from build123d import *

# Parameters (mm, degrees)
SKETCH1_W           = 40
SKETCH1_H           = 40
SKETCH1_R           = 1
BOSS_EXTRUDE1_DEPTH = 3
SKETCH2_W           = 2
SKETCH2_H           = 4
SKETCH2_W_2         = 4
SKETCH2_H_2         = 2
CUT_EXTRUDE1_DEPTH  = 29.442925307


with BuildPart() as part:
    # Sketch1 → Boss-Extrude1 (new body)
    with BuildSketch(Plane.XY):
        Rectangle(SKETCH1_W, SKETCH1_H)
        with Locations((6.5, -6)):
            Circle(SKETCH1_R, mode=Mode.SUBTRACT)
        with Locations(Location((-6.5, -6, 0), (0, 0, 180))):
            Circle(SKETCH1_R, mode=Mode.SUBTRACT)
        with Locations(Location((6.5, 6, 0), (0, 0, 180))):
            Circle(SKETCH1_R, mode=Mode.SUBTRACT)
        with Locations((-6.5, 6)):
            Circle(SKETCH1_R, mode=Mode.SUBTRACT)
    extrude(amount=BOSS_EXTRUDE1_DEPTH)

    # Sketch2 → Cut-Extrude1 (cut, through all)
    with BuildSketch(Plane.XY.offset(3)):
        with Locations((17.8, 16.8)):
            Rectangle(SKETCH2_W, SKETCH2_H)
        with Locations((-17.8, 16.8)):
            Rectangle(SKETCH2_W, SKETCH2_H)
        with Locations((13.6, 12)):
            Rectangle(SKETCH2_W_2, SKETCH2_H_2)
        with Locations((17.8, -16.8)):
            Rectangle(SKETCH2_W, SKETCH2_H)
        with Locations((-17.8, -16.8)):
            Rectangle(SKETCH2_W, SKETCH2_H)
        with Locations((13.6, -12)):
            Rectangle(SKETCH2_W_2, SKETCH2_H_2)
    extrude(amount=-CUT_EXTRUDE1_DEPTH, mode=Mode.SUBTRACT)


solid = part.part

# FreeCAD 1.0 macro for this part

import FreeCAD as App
import Part
import Sketcher
from FreeCAD import Vector

doc = App.newDocument("Part")
body = doc.addObject("PartDesign::Body", "Body")

# Sketch on XY plane
sketch1 = body.newObject("Sketcher::SketchObject", "Sketch")
sketch1.AttachmentSupport = (doc.getObject("XY_Plane"), [""])
sketch1.MapMode = "FlatFace"
sketch1.addGeometry(Part.LineSegment(Vector(-20, 20, 0), Vector(-20, -20, 0)), False)
sketch1.addGeometry(Part.LineSegment(Vector(-20, -20, 0), Vector(20, -20, 0)), False)
sketch1.addGeometry(Part.LineSegment(Vector(20, -20, 0), Vector(20, 20, 0)), False)
sketch1.addGeometry(Part.LineSegment(Vector(20, 20, 0), Vector(-20, 20, 0)), False)
sketch1.addGeometry(Part.Circle(Vector(-6.5, -6, 0), Vector(0, 0, 1), 1), False)
sketch1.addGeometry(Part.Circle(Vector(6.5, -6, 0), Vector(0, 0, 1), 1), False)
sketch1.addGeometry(Part.Circle(Vector(-6.5, 6, 0), Vector(0, 0, 1), 1), False)
sketch1.addGeometry(Part.Circle(Vector(6.5, 6, 0), Vector(0, 0, 1), 1), False)
sketch1.addConstraint(Sketcher.Constraint("Coincident", 0, 2, 1, 1))
sketch1.addConstraint(Sketcher.Constraint("Coincident", 1, 2, 2, 1))
sketch1.addConstraint(Sketcher.Constraint("Coincident", 2, 2, 3, 1))
sketch1.addConstraint(Sketcher.Constraint("Coincident", 3, 2, 0, 1))
sketch1.addConstraint(Sketcher.Constraint("Vertical", 0))
sketch1.addConstraint(Sketcher.Constraint("Horizontal", 1))
sketch1.addConstraint(Sketcher.Constraint("Vertical", 2))
sketch1.addConstraint(Sketcher.Constraint("Horizontal", 3))
sketch1.addConstraint(Sketcher.Constraint("Equal", 4, 5))
sketch1.addConstraint(Sketcher.Constraint("Equal", 5, 6))
sketch1.addConstraint(Sketcher.Constraint("Equal", 6, 7))
sketch1.addConstraint(Sketcher.Constraint("Symmetric", 5, 3, 6, 3, -1, 1))
sketch1.addConstraint(Sketcher.Constraint("Symmetric", 4, 3, 7, 3, -1, 1))
sketch1.addConstraint(Sketcher.Constraint("Symmetric", 0, 2, 2, 2, -1, 1))
sketch1.addConstraint(Sketcher.Constraint("Symmetric", 4, 3, 5, 3, -2))
sketch1.addConstraint(Sketcher.Constraint("Equal", 3, 0))
sketch1.addConstraint(Sketcher.Constraint("Diameter", 4, 2.0))
sketch1.addConstraint(Sketcher.Constraint("DistanceX", 1, 1, 1, 2, 40.0))
sketch1.addConstraint(Sketcher.Constraint("DistanceY", 4, 3, -1, 1, 6.0))
sketch1.addConstraint(Sketcher.Constraint("DistanceX", 4, 3, 5, 3, 13.0))
pad1 = body.newObject("PartDesign::Pad", "Pad")
pad1.Profile = sketch1
pad1.Length = 3

# Sketch on XY plane
sketch2 = body.newObject("Sketcher::SketchObject", "Sketch001")
sketch2.AttachmentSupport = (doc.getObject("XY_Plane"), [""])
sketch2.MapMode = "FlatFace"
sketch2.AttachmentOffset = App.Placement(Vector(0, 0, 3), App.Rotation())
sketch2.addGeometry(Part.LineSegment(Vector(16.8, 18.8, 0), Vector(16.8, 14.8, 0)), False)
sketch2.addGeometry(Part.LineSegment(Vector(16.8, 14.8, 0), Vector(18.8, 14.8, 0)), False)
sketch2.addGeometry(Part.LineSegment(Vector(18.8, 14.8, 0), Vector(18.8, 18.8, 0)), False)
sketch2.addGeometry(Part.LineSegment(Vector(18.8, 18.8, 0), Vector(16.8, 18.8, 0)), False)
sketch2.addGeometry(Part.LineSegment(Vector(-18.8, 18.8, 0), Vector(-18.8, 14.8, 0)), False)
sketch2.addGeometry(Part.LineSegment(Vector(-18.8, 14.8, 0), Vector(-16.8, 14.8, 0)), False)
sketch2.addGeometry(Part.LineSegment(Vector(-16.8, 14.8, 0), Vector(-16.8, 18.8, 0)), False)
sketch2.addGeometry(Part.LineSegment(Vector(-16.8, 18.8, 0), Vector(-18.8, 18.8, 0)), False)
sketch2.addGeometry(Part.LineSegment(Vector(11.6, 13, 0), Vector(11.6, 11, 0)), False)
sketch2.addGeometry(Part.LineSegment(Vector(11.6, 11, 0), Vector(15.6, 11, 0)), False)
sketch2.addGeometry(Part.LineSegment(Vector(15.6, 11, 0), Vector(15.6, 13, 0)), False)
sketch2.addGeometry(Part.LineSegment(Vector(15.6, 13, 0), Vector(11.6, 13, 0)), False)
sketch2.addGeometry(Part.LineSegment(Vector(16.8, -14.8, 0), Vector(16.8, -18.8, 0)), False)
sketch2.addGeometry(Part.LineSegment(Vector(16.8, -18.8, 0), Vector(18.8, -18.8, 0)), False)
sketch2.addGeometry(Part.LineSegment(Vector(18.8, -18.8, 0), Vector(18.8, -14.8, 0)), False)
sketch2.addGeometry(Part.LineSegment(Vector(18.8, -14.8, 0), Vector(16.8, -14.8, 0)), False)
sketch2.addGeometry(Part.LineSegment(Vector(-18.8, -14.8, 0), Vector(-18.8, -18.8, 0)), False)
sketch2.addGeometry(Part.LineSegment(Vector(-18.8, -18.8, 0), Vector(-16.8, -18.8, 0)), False)
sketch2.addGeometry(Part.LineSegment(Vector(-16.8, -18.8, 0), Vector(-16.8, -14.8, 0)), False)
sketch2.addGeometry(Part.LineSegment(Vector(-16.8, -14.8, 0), Vector(-18.8, -14.8, 0)), False)
sketch2.addGeometry(Part.LineSegment(Vector(11.6, -11, 0), Vector(11.6, -13, 0)), False)
sketch2.addGeometry(Part.LineSegment(Vector(11.6, -13, 0), Vector(15.6, -13, 0)), False)
sketch2.addGeometry(Part.LineSegment(Vector(15.6, -13, 0), Vector(15.6, -11, 0)), False)
sketch2.addGeometry(Part.LineSegment(Vector(15.6, -11, 0), Vector(11.6, -11, 0)), False)
sketch2.addConstraint(Sketcher.Constraint("Coincident", 0, 2, 1, 1))
sketch2.addConstraint(Sketcher.Constraint("Coincident", 1, 2, 2, 1))
sketch2.addConstraint(Sketcher.Constraint("Coincident", 2, 2, 3, 1))
sketch2.addConstraint(Sketcher.Constraint("Coincident", 3, 2, 0, 1))
sketch2.addConstraint(Sketcher.Constraint("Coincident", 4, 2, 5, 1))
sketch2.addConstraint(Sketcher.Constraint("Coincident", 5, 2, 6, 1))
sketch2.addConstraint(Sketcher.Constraint("Coincident", 6, 2, 7, 1))
sketch2.addConstraint(Sketcher.Constraint("Coincident", 7, 2, 4, 1))
sketch2.addConstraint(Sketcher.Constraint("Coincident", 8, 2, 9, 1))
sketch2.addConstraint(Sketcher.Constraint("Coincident", 9, 2, 10, 1))
sketch2.addConstraint(Sketcher.Constraint("Coincident", 10, 2, 11, 1))
sketch2.addConstraint(Sketcher.Constraint("Coincident", 11, 2, 8, 1))
sketch2.addConstraint(Sketcher.Constraint("Coincident", 12, 2, 13, 1))
sketch2.addConstraint(Sketcher.Constraint("Coincident", 13, 2, 14, 1))
sketch2.addConstraint(Sketcher.Constraint("Coincident", 14, 2, 15, 1))
sketch2.addConstraint(Sketcher.Constraint("Coincident", 15, 2, 12, 1))
sketch2.addConstraint(Sketcher.Constraint("Coincident", 16, 2, 17, 1))
sketch2.addConstraint(Sketcher.Constraint("Coincident", 17, 2, 18, 1))
sketch2.addConstraint(Sketcher.Constraint("Coincident", 18, 2, 19, 1))
sketch2.addConstraint(Sketcher.Constraint("Coincident", 19, 2, 16, 1))
sketch2.addConstraint(Sketcher.Constraint("Coincident", 20, 2, 21, 1))
sketch2.addConstraint(Sketcher.Constraint("Coincident", 21, 2, 22, 1))
sketch2.addConstraint(Sketcher.Constraint("Coincident", 22, 2, 23, 1))
sketch2.addConstraint(Sketcher.Constraint("Coincident", 23, 2, 20, 1))
sketch2.addConstraint(Sketcher.Constraint("Vertical", 0))
sketch2.addConstraint(Sketcher.Constraint("Horizontal", 1))
sketch2.addConstraint(Sketcher.Constraint("Vertical", 2))
sketch2.addConstraint(Sketcher.Constraint("Horizontal", 3))
sketch2.addConstraint(Sketcher.Constraint("Vertical", 4))
sketch2.addConstraint(Sketcher.Constraint("Horizontal", 5))
sketch2.addConstraint(Sketcher.Constraint("Vertical", 6))
sketch2.addConstraint(Sketcher.Constraint("Horizontal", 7))
sketch2.addConstraint(Sketcher.Constraint("Vertical", 8))
sketch2.addConstraint(Sketcher.Constraint("Horizontal", 9))
sketch2.addConstraint(Sketcher.Constraint("Vertical", 10))
sketch2.addConstraint(Sketcher.Constraint("Horizontal", 11))
sketch2.addConstraint(Sketcher.Constraint("Vertical", 12))
sketch2.addConstraint(Sketcher.Constraint("Horizontal", 13))
sketch2.addConstraint(Sketcher.Constraint("Vertical", 14))
sketch2.addConstraint(Sketcher.Constraint("Horizontal", 15))
sketch2.addConstraint(Sketcher.Constraint("Vertical", 16))
sketch2.addConstraint(Sketcher.Constraint("Horizontal", 17))
sketch2.addConstraint(Sketcher.Constraint("Vertical", 18))
sketch2.addConstraint(Sketcher.Constraint("Horizontal", 19))
sketch2.addConstraint(Sketcher.Constraint("Vertical", 20))
sketch2.addConstraint(Sketcher.Constraint("Horizontal", 21))
sketch2.addConstraint(Sketcher.Constraint("Vertical", 22))
sketch2.addConstraint(Sketcher.Constraint("Horizontal", 23))
sketch2.addConstraint(Sketcher.Constraint("Symmetric", 6, 2, 12, 2, -1, 1))
sketch2.addConstraint(Sketcher.Constraint("Symmetric", 4, 2, 14, 2, -1, 1))
sketch2.addConstraint(Sketcher.Constraint("Symmetric", 2, 2, 16, 2, -1, 1))
sketch2.addConstraint(Sketcher.Constraint("Symmetric", 0, 2, 18, 2, -1, 1))
sketch2.addConstraint(Sketcher.Constraint("Symmetric", 1, 2, 4, 2, -2))
sketch2.addConstraint(Sketcher.Constraint("Symmetric", 3, 2, 6, 2, -2))
sketch2.addConstraint(Sketcher.Constraint("Symmetric", 11, 2, 20, 2, -1))
sketch2.addConstraint(Sketcher.Constraint("Symmetric", 9, 2, 22, 2, -1))
sketch2.addConstraint(Sketcher.Constraint("Equal", 23, 0))
sketch2.addConstraint(Sketcher.Constraint("Equal", 19, 8))
sketch2.addConstraint(Sketcher.Constraint("DistanceX", 1, 1, 1, 2, 2.0))
sketch2.addConstraint(Sketcher.Constraint("DistanceX", 9, 1, 9, 2, 4.0))
sketch2.addConstraint(Sketcher.Constraint("DistanceY", -1, 1, 8, 2, 11.0))
sketch2.addConstraint(Sketcher.Constraint("DistanceX", -1, 1, 0, 2, 16.8))
sketch2.addConstraint(Sketcher.Constraint("DistanceY", -1, 1, 0, 2, 14.8))
sketch2.addConstraint(Sketcher.Constraint("DistanceX", -1, 1, 8, 2, 11.6))
pocket1 = body.newObject("PartDesign::Pocket", "Pocket")
pocket1.Profile = sketch2
pocket1.Type = "ThroughAll"

doc.recompute()
